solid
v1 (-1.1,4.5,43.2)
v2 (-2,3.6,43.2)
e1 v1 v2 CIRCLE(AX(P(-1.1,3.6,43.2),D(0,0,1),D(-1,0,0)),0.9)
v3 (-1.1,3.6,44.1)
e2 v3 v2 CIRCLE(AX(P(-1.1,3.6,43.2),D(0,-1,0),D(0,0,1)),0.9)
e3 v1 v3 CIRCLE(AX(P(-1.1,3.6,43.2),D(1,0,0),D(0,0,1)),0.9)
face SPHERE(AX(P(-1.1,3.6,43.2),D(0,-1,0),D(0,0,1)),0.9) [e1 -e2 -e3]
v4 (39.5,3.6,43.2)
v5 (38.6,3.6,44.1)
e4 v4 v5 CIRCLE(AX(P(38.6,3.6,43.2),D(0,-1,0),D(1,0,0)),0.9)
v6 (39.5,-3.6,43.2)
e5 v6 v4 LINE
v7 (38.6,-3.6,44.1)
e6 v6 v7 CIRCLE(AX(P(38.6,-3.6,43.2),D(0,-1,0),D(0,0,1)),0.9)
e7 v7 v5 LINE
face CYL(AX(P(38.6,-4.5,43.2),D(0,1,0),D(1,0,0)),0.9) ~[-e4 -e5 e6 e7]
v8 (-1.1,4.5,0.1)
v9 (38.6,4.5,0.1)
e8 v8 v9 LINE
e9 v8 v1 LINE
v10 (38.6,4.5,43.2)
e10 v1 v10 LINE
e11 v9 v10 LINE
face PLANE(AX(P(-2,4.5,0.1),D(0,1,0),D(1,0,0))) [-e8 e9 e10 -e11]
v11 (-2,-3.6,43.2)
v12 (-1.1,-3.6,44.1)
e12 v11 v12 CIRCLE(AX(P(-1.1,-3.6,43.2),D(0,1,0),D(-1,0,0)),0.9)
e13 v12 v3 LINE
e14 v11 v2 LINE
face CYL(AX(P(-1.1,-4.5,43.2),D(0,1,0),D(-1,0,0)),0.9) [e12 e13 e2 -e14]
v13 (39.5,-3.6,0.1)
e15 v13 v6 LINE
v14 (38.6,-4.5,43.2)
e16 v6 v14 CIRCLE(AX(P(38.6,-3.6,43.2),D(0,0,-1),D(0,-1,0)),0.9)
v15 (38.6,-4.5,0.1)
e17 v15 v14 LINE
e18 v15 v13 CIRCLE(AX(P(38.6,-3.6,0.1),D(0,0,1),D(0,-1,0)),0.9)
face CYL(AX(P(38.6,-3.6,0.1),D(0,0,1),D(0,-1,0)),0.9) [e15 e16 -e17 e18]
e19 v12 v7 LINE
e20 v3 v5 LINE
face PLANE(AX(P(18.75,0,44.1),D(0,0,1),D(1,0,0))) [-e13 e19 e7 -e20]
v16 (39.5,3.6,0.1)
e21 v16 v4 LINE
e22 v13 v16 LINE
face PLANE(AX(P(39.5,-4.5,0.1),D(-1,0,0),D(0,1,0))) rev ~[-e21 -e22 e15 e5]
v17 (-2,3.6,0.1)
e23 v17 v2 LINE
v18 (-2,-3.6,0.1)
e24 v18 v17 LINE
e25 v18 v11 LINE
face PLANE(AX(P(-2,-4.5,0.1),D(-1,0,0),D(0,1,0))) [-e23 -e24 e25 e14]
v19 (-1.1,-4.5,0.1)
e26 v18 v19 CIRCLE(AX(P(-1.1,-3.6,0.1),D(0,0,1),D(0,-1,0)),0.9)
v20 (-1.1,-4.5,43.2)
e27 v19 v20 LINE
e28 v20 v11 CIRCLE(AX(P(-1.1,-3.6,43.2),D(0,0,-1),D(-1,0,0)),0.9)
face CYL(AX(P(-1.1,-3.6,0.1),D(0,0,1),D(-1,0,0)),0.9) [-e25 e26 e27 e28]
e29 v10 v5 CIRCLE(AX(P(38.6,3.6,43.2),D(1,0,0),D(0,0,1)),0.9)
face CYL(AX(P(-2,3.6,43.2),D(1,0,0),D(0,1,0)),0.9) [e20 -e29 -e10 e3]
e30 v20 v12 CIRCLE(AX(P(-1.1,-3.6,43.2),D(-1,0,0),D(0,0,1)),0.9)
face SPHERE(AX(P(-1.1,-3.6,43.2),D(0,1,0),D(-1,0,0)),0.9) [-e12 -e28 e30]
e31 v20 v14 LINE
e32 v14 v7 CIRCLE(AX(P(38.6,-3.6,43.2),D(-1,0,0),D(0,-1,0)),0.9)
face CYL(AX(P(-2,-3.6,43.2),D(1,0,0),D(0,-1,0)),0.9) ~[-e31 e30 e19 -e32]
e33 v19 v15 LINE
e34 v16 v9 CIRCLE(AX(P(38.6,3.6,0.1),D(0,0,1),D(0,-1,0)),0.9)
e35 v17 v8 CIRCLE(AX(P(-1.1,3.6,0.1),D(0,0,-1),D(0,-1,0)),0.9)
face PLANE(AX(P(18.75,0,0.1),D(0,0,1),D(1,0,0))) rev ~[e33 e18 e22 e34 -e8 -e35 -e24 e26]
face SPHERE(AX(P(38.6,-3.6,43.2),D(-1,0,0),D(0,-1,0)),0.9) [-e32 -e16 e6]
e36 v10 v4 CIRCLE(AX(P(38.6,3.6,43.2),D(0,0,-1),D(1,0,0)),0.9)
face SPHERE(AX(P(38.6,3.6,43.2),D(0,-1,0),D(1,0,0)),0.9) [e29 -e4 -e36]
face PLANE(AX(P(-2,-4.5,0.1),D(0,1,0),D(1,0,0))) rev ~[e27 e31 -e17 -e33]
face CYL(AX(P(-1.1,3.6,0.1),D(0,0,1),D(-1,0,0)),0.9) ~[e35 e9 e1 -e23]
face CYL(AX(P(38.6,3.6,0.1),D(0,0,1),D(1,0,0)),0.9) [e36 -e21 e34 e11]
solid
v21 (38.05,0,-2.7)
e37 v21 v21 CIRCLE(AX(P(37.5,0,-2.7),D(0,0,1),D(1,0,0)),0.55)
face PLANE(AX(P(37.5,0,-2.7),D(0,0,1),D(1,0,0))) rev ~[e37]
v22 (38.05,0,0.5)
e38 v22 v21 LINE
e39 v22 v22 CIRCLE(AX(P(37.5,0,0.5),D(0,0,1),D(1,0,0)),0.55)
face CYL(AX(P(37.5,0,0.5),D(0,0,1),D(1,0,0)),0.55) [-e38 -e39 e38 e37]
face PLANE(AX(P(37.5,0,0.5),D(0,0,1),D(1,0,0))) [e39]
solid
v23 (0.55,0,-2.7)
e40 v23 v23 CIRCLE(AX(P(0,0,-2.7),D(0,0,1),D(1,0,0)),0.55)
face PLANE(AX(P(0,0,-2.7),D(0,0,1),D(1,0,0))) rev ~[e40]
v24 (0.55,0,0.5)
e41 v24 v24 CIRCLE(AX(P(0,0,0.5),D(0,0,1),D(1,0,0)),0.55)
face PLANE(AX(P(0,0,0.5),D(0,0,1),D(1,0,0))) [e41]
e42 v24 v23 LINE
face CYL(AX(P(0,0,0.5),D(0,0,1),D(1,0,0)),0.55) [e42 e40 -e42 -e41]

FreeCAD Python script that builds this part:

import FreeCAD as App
import Part
import Sketcher
Q = App.Units.Quantity


def edges_at(feature, points):
    """Names of the edges that pass closest to the given points."""
    edges = feature.Shape.Edges
    near = lambda p: min(range(len(edges)), key=lambda i: edges[i].distToShape(Part.Vertex(*p))[0])
    return sorted({f"Edge{near(p) + 1}" for p in points})

doc = App.newDocument("Part")
params = doc.addObject("Spreadsheet::Sheet", "Params")
for row, (alias, value) in enumerate([
    ("sketch1_height", "9 mm"),
    ("sketch1_width", "41.5 mm"),
    ("pad1_length", "44 mm"),
    ("fillet_radius", "0.9 mm"),
    ("sketch2_diameter", "1.1 mm"),
    ("pad2_length", "3.2 mm"),
], start=1):
    params.set(f"A{row}", alias)
    params.set(f"B{row}", "=" + value)
    params.setAlias(f"B{row}", alias)

body = doc.addObject("PartDesign::Body", "Body")

# Sketch on XY plane
sketch1 = doc.addObject("Sketcher::SketchObject", "Sketch")
body.addObject(sketch1)
sketch1.AttachmentSupport = (doc.XY_Plane, [""])
sketch1.MapMode = "FlatFace"
sketch1.AttachmentOffset = App.Placement(App.Vector(0, 0, 0.1), App.Rotation())
sketch1.addGeometry(Part.LineSegment(App.Vector(-2, 4.5, 0), App.Vector(-2, -4.5, 0)), False)
sketch1.addGeometry(Part.LineSegment(App.Vector(-2, -4.5, 0), App.Vector(39.5, -4.5, 0)), False)
sketch1.addGeometry(Part.LineSegment(App.Vector(39.5, -4.5, 0), App.Vector(39.5, 4.5, 0)), False)
sketch1.addGeometry(Part.LineSegment(App.Vector(39.5, 4.5, 0), App.Vector(-2, 4.5, 0)), False)
sketch1.addConstraint(Sketcher.Constraint("Coincident", 0, 2, 1, 1))
sketch1.addConstraint(Sketcher.Constraint("Coincident", 1, 2, 2, 1))
sketch1.addConstraint(Sketcher.Constraint("Coincident", 2, 2, 3, 1))
sketch1.addConstraint(Sketcher.Constraint("Coincident", 3, 2, 0, 1))
sketch1.addConstraint(Sketcher.Constraint("Vertical", 0))
sketch1.addConstraint(Sketcher.Constraint("Horizontal", 1))
sketch1.addConstraint(Sketcher.Constraint("Vertical", 2))
sketch1.addConstraint(Sketcher.Constraint("Horizontal", 3))
sketch1.addConstraint(Sketcher.Constraint("DistanceY", 0, 2, 0, 1, Q("9 mm")))
sketch1.addConstraint(Sketcher.Constraint("DistanceX", 1, 1, 1, 2, Q("41.5 mm")))
sketch1.addConstraint(Sketcher.Constraint("DistanceX", 0, 2, -1, 1, Q("2 mm")))
sketch1.addConstraint(Sketcher.Constraint("DistanceY", 0, 2, -1, 1, Q("4.5 mm")))
sketch1.setExpression("Constraints[8]", "Params.sketch1_height")
sketch1.setExpression("Constraints[9]", "Params.sketch1_width")
pad1 = doc.addObject("PartDesign::Pad", "Pad")
body.addObject(pad1)
pad1.Profile = sketch1
pad1.setExpression("Length", "Params.pad1_length")
doc.recompute()

fillet = doc.addObject("PartDesign::Fillet", "Fillet")
body.addObject(fillet)
fillet.Base = (pad1, edges_at(pad1, [
    (-2, 0, 44.1),
    (-2, -4.5, 22.1),
    (18.75, -4.5, 44.1),
    (39.5, -4.5, 22.1),
    (39.5, 0, 44.1),
    (39.5, 4.5, 22.1),
    (18.75, 4.5, 44.1),
    (-2, 4.5, 22.1),
]))
fillet.setExpression("Radius", "Params.fillet_radius")
body2 = doc.addObject("PartDesign::Body", "Body001")
body2.AllowCompound = True

# Sketch on XY plane
sketch2 = doc.addObject("Sketcher::SketchObject", "Sketch001")
body2.addObject(sketch2)
sketch2.AttachmentSupport = (doc.getObject("XY_Plane001"), [""])
sketch2.MapMode = "FlatFace"
sketch2.AttachmentOffset = App.Placement(App.Vector(0, 0, 0.5), App.Rotation())
sketch2.addGeometry(Part.Circle(App.Vector(0, 0, 0), App.Vector(0, 0, 1), 0.55), False)
sketch2.addGeometry(Part.Circle(App.Vector(37.5, 0, 0), App.Vector(0, 0, 1), 0.55), False)
sketch2.addConstraint(Sketcher.Constraint("Coincident", 0, 3, -1, 1))
sketch2.addConstraint(Sketcher.Constraint("Equal", 0, 1))
sketch2.addConstraint(Sketcher.Constraint("PointOnObject", 1, 3, -1))
sketch2.addConstraint(Sketcher.Constraint("Diameter", 0, Q("1.1 mm")))
sketch2.addConstraint(Sketcher.Constraint("DistanceX", -1, 1, 1, 3, Q("37.5 mm")))
sketch2.setExpression("Constraints[3]", "Params.sketch2_diameter")
pad2 = doc.addObject("PartDesign::Pad", "Pad001")
body2.addObject(pad2)
pad2.Profile = sketch2
pad2.setExpression("Length", "Params.pad2_length")
pad2.Reversed = True

doc.recompute()
